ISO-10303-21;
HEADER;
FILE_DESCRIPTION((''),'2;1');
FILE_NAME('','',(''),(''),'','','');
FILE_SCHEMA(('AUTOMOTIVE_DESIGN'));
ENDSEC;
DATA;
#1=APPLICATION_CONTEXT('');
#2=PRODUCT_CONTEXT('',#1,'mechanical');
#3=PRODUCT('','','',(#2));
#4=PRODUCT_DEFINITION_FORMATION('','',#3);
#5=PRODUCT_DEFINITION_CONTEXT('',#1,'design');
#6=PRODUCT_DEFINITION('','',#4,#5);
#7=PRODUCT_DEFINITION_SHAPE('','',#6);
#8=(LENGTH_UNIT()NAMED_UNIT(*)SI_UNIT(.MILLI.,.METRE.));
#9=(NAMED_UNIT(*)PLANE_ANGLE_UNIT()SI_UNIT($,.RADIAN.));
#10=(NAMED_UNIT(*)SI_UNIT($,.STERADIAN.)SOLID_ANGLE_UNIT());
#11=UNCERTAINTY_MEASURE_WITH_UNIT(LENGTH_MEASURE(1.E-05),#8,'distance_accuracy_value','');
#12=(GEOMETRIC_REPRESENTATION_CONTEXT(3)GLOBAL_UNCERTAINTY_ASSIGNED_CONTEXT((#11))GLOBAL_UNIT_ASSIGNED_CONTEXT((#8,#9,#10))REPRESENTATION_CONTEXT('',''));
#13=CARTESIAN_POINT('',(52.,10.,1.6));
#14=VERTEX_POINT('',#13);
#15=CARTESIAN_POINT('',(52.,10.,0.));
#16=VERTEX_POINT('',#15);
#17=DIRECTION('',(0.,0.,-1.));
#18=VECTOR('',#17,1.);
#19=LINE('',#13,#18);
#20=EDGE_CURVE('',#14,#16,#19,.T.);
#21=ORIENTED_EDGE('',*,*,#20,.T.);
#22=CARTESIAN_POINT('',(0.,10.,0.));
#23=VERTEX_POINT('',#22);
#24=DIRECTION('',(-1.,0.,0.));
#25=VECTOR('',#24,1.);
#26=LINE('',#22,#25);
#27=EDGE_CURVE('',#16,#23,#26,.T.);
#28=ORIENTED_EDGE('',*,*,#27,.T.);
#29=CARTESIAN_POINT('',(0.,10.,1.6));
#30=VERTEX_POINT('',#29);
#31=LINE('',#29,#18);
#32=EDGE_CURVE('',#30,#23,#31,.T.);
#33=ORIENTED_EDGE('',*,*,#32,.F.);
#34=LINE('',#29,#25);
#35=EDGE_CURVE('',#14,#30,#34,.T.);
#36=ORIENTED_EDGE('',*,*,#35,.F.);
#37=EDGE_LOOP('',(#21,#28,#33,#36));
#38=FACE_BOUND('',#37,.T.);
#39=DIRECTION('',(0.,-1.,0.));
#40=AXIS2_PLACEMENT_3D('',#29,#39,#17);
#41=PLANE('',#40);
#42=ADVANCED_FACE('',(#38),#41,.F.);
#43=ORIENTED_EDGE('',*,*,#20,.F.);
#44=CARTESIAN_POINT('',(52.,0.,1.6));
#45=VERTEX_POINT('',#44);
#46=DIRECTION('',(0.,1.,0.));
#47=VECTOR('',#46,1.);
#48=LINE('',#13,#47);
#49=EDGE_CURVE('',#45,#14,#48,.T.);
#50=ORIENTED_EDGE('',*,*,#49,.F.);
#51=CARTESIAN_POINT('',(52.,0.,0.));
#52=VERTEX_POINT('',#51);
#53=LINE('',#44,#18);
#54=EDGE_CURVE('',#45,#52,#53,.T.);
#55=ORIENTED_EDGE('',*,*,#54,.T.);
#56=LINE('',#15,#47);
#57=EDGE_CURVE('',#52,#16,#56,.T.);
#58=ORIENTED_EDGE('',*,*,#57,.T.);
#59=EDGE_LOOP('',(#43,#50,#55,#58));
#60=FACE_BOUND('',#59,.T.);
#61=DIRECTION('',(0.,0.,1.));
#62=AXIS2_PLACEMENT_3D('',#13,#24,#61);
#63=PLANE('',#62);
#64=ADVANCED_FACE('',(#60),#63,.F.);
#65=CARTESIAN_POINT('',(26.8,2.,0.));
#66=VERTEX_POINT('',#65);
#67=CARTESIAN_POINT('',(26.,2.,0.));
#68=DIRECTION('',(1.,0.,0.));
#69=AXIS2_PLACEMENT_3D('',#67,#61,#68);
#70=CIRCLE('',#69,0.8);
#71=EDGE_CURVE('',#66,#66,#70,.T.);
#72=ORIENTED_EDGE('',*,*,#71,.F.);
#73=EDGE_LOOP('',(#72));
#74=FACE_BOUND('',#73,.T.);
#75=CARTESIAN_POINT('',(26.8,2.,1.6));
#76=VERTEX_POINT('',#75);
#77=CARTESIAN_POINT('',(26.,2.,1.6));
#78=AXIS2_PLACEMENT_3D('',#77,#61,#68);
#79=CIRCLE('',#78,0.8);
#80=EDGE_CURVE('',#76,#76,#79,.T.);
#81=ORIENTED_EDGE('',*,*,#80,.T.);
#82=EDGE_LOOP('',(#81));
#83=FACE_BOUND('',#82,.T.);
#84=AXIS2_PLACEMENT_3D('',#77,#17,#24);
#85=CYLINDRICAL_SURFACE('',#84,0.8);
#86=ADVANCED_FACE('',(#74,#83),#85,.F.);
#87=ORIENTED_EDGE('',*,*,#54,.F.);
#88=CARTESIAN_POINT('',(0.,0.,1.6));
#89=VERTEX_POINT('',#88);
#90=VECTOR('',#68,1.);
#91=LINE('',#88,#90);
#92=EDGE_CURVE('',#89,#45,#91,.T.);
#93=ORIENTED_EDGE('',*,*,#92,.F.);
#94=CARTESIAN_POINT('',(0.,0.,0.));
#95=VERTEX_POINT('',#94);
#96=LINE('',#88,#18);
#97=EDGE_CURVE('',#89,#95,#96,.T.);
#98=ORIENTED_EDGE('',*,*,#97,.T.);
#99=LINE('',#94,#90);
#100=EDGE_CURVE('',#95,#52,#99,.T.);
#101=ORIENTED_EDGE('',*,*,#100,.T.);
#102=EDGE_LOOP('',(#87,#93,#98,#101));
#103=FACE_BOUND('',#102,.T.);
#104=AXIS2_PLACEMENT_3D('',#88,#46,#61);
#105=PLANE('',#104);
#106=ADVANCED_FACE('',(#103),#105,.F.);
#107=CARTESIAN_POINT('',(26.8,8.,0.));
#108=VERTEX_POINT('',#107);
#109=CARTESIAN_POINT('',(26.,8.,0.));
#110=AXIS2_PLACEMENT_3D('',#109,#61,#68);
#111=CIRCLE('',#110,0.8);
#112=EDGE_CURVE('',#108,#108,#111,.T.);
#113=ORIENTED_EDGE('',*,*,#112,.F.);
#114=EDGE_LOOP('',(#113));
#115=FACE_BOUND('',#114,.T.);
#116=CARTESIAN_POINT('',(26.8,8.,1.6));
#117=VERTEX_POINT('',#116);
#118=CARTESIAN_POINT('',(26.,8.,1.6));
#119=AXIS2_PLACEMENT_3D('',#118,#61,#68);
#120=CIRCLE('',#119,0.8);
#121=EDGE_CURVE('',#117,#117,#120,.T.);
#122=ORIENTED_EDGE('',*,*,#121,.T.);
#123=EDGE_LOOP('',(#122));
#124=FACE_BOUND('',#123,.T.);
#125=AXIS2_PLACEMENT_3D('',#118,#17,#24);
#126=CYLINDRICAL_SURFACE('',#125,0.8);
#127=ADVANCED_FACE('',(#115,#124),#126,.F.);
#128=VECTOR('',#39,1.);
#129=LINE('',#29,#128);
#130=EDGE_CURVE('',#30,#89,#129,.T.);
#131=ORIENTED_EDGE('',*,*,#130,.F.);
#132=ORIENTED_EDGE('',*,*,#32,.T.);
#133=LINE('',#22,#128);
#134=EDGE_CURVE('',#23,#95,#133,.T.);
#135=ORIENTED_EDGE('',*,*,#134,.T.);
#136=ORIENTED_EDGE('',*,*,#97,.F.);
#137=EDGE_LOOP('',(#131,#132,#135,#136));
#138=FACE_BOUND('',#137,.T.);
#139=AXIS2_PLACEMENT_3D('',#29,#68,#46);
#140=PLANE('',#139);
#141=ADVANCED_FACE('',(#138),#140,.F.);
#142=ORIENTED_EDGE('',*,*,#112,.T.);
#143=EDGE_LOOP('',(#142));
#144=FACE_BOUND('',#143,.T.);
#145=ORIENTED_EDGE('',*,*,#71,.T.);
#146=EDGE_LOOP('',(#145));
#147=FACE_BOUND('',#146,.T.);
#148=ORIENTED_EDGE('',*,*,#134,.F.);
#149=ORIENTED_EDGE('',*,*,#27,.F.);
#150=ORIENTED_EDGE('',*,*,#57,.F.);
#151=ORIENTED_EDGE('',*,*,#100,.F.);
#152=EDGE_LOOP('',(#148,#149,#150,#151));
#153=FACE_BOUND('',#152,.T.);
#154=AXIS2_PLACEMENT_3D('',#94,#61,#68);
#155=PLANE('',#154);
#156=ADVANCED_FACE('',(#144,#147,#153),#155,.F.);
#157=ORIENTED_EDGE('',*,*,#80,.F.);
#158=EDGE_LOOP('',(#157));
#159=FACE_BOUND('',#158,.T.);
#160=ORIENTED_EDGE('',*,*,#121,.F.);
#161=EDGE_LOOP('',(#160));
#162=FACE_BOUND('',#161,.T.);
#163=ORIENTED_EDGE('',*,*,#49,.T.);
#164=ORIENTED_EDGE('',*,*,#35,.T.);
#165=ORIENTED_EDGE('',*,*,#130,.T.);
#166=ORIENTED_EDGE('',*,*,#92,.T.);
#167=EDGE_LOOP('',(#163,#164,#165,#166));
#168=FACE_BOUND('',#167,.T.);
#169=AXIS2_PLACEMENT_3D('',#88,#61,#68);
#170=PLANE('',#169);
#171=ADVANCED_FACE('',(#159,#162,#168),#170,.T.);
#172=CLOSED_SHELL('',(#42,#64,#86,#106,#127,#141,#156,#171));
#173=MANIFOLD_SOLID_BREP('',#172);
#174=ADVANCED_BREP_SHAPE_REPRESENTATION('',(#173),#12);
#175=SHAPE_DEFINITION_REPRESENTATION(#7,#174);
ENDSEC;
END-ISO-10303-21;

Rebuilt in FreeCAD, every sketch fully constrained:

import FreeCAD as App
import Part
import Sketcher
from FreeCAD import Vector
Q = App.Units.Quantity


def add_polygon(sketch, points):
    """Adds a closed chain of lines whose ends are joined by coincident constraints."""
    first, n = sketch.GeometryCount, len(points)
    for a, b in zip(points, points[1:] + points[:1]):
        sketch.addGeometry(Part.LineSegment(App.Vector(*a, 0), App.Vector(*b, 0)), False)
    for i in range(n):
        sketch.addConstraint(Sketcher.Constraint("Coincident", first + i, 2, first + (i + 1) % n, 1))

doc = App.newDocument("Part")
body = doc.addObject("PartDesign::Body", "Body")

# Sketch on XY plane
sketch1 = doc.addObject("Sketcher::SketchObject", "Sketch")
body.addObject(sketch1)
sketch1.AttachmentSupport = (doc.XY_Plane, [""])
sketch1.MapMode = "FlatFace"
add_polygon(sketch1, [(0, 10), (0, 0), (52, 0), (52, 10)])  # lines 0-3
sketch1.addConstraint([
    Sketcher.Constraint("Vertical", 0),
    Sketcher.Constraint("Horizontal", 1),
    Sketcher.Constraint("Vertical", 2),
    Sketcher.Constraint("Horizontal", 3),
    Sketcher.Constraint("Coincident", 0, 2, -1, 1),
    Sketcher.Constraint("DistanceX", 1, 1, 1, 2, Q("52 mm")),
    Sketcher.Constraint("DistanceY", 0, 2, 0, 1, Q("10 mm")),
])
pad1 = doc.addObject("PartDesign::Pad", "Pad")
body.addObject(pad1)
pad1.Profile = sketch1
pad1.Length = 1.6

# Sketch on XY plane
sketch2 = doc.addObject("Sketcher::SketchObject", "Sketch001")
body.addObject(sketch2)
sketch2.AttachmentSupport = (doc.XY_Plane, [""])
sketch2.MapMode = "FlatFace"
sketch2.addGeometry([
    Part.Circle(Vector(26, 2, 0), Vector(0, 0, 1), 0.8),
    Part.Circle(Vector(26, 8, 0), Vector(0, 0, 1), 0.8),
], False)
sketch2.addConstraint([
    Sketcher.Constraint("Equal", 0, 1),
    Sketcher.Constraint("Vertical", 0, 3, 1, 3),
    Sketcher.Constraint("Diameter", 0, Q("1.6 mm")),
    Sketcher.Constraint("DistanceX", -1, 1, 0, 3, Q("26 mm")),
    Sketcher.Constraint("DistanceY", -1, 1, 0, 3, Q("2 mm")),
    Sketcher.Constraint("DistanceY", -1, 1, 1, 3, Q("8 mm")),
])
pocket1 = doc.addObject("PartDesign::Pocket", "Pocket")
body.addObject(pocket1)
pocket1.Profile = sketch2
pocket1.Length = 1.6
pocket1.Reversed = True

doc.recompute()
